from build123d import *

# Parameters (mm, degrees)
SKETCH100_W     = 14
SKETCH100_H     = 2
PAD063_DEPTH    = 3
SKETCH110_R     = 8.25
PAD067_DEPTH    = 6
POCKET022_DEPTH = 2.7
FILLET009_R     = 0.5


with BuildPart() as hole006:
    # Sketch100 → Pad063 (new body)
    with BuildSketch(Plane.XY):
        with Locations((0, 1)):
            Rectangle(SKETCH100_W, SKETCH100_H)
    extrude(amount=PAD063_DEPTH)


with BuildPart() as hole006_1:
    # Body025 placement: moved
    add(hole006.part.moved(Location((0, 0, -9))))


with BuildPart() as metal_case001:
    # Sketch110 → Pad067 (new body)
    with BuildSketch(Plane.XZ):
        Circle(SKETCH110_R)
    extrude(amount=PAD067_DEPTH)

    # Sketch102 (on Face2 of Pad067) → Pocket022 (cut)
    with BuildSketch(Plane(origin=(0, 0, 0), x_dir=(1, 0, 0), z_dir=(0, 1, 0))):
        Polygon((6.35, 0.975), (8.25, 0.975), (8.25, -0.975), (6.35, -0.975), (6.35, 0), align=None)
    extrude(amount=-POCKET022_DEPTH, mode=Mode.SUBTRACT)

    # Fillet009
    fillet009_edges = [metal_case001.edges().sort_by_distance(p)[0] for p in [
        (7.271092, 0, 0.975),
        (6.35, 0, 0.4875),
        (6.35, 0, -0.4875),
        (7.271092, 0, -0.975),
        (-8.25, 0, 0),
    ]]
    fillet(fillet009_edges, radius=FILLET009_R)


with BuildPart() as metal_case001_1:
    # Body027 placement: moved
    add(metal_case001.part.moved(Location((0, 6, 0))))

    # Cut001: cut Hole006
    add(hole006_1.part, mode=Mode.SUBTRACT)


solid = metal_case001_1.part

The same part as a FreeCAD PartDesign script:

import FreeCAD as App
import Part
import Sketcher

V = App.Vector
Q = App.Units.Quantity


def edges_at(feature, points):
    """Names of the edges that pass closest to the given points."""
    edges = feature.Shape.Edges
    near = lambda p: min(range(len(edges)), key=lambda i: edges[i].distToShape(Part.Vertex(*p))[0])
    return sorted({f"Edge{near(p) + 1}" for p in points})

doc = App.newDocument("Part")
params = doc.addObject("Spreadsheet::Sheet", "Params")
for row, (alias, value) in enumerate([
    ("sketch1_width", "14 mm"),
    ("sketch1_height", "2 mm"),
    ("pad1_length", "3 mm"),
    ("sketch2_diameter", "16.5 mm"),
    ("pad2_length", "6 mm"),
    ("sketch3_width", "1.9 mm"),
    ("sketch3_height", "1.95 mm"),
    ("pocket1_length", "2.7 mm"),
    ("fillet_radius", "0.5 mm"),
], start=1):
    params.set(f"A{row}", alias)
    params.set(f"B{row}", "=" + value)
    params.setAlias(f"B{row}", alias)

body = doc.addObject("PartDesign::Body", "Body")

# Sketch on XY plane
sketch1 = body.newObject("Sketcher::SketchObject", "Sketch")
sketch1.AttachmentSupport = (doc.getObject("XY_Plane"), [""])
sketch1.MapMode = "FlatFace"
sketch1.addGeometry([
    Part.LineSegment(V(-7, 2, 0), V(-7, 0, 0)),
    Part.LineSegment(V(-7, 0, 0), V(7, 0, 0)),
    Part.LineSegment(V(7, 0, 0), V(7, 2, 0)),
    Part.LineSegment(V(7, 2, 0), V(-7, 2, 0)),
], False)
sketch1.addConstraint([
    Sketcher.Constraint("Coincident", 0, 2, 1, 1),
    Sketcher.Constraint("Coincident", 1, 2, 2, 1),
    Sketcher.Constraint("Coincident", 2, 2, 3, 1),
    Sketcher.Constraint("Coincident", 3, 2, 0, 1),
    Sketcher.Constraint("Vertical", 0),
    Sketcher.Constraint("Horizontal", 1),
    Sketcher.Constraint("Vertical", 2),
    Sketcher.Constraint("Horizontal", 3),
    Sketcher.Constraint("Symmetric", 0, 2, 1, 2, -1, 1),
    Sketcher.Constraint("DistanceX", 1, 1, 1, 2, Q("14 mm")),
    Sketcher.Constraint("DistanceY", 0, 2, 0, 1, Q("2 mm")),
])
sketch1.setExpression("Constraints[9]", "Params.sketch1_width")
sketch1.setExpression("Constraints[10]", "Params.sketch1_height")
pad1 = body.newObject("PartDesign::Pad", "Pad")
pad1.Profile = sketch1
pad1.setExpression("Length", "Params.pad1_length")
body2 = doc.addObject("PartDesign::Body", "Body001")
doc.recompute()

body.Placement = App.Placement(V(0, 0, -9), App.Rotation(V(0, 0, 1), 0))
boolean = body2.newObject("PartDesign::Boolean", "Boolean")
boolean.Type = "Fuse"
boolean.addObjects([body])
body3 = doc.addObject("PartDesign::Body", "Body002")

# Sketch on XZ plane
sketch2 = body3.newObject("Sketcher::SketchObject", "Sketch001")
sketch2.AttachmentSupport = (doc.getObject("XZ_Plane002"), [""])
sketch2.MapMode = "FlatFace"
sketch2.addGeometry(Part.Circle(V(0, 0, 0), V(0, 0, 1), 8), False)
sketch2.addConstraint([
    Sketcher.Constraint("Coincident", 0, 3, -1, 1),
    Sketcher.Constraint("Diameter", 0, Q("16.5 mm")),
])
sketch2.setExpression("Constraints[1]", "Params.sketch2_diameter")
pad2 = body3.newObject("PartDesign::Pad", "Pad001")
pad2.Profile = sketch2
pad2.setExpression("Length", "Params.pad2_length")

# Sketch on XZ plane
sketch3 = body3.newObject("Sketcher::SketchObject", "Sketch002")
sketch3.AttachmentSupport = (doc.getObject("XZ_Plane002"), [""])
sketch3.MapMode = "FlatFace"
sketch3.addGeometry([
    Part.LineSegment(V(8.2, -1, 0), V(6.3, -1, 0)),
    Part.LineSegment(V(6.3, -1, 0), V(6.3, 1, 0)),
    Part.LineSegment(V(6.3, 1, 0), V(8.2, 1, 0)),
    Part.LineSegment(V(8.2, 1, 0), V(8.2, -1, 0)),
], False)
sketch3.addConstraint([
    Sketcher.Constraint("Coincident", 0, 2, 1, 1),
    Sketcher.Constraint("Coincident", 1, 2, 2, 1),
    Sketcher.Constraint("Coincident", 2, 2, 3, 1),
    Sketcher.Constraint("Coincident", 3, 2, 0, 1),
    Sketcher.Constraint("Horizontal", 0),
    Sketcher.Constraint("Vertical", 1),
    Sketcher.Constraint("Horizontal", 2),
    Sketcher.Constraint("Vertical", 3),
    Sketcher.Constraint("DistanceX", 0, 2, 0, 1, Q("1.9 mm")),
    Sketcher.Constraint("DistanceY", 1, 1, 1, 2, Q("1.95 mm")),
    Sketcher.Constraint("DistanceX", -1, 1, 0, 2, Q("6.35 mm")),
    Sketcher.Constraint("DistanceY", 0, 2, -1, 1, Q("0.975 mm")),
])
sketch3.setExpression("Constraints[8]", "Params.sketch3_width")
sketch3.setExpression("Constraints[9]", "Params.sketch3_height")
pocket1 = body3.newObject("PartDesign::Pocket", "Pocket")
pocket1.Profile = sketch3
pocket1.setExpression("Length", "Params.pocket1_length")
pocket1.Reversed = True
doc.recompute()

fillet = body3.newObject("PartDesign::Fillet", "Fillet")
fillet.Base = (pocket1, edges_at(pocket1, [
    (7.271, 0, 0.975),
    (6.35, 0, 0),
    (6.35, 0, 0),
    (7.271, 0, -0.975),
    (-8.25, 0, 0),
]))
fillet.setExpression("Radius", "Params.fillet_radius")
body4 = doc.addObject("PartDesign::Body", "Body003")
doc.recompute()

body3.Placement = App.Placement(V(0, 6, 0), App.Rotation(V(0, 0, 1), 0))
boolean2 = body4.newObject("PartDesign::Boolean", "Boolean001")
boolean2.Type = "Fuse"
boolean2.addObjects([body3])
doc.recompute()

boolean3 = body4.newObject("PartDesign::Boolean", "Boolean002")
boolean3.Type = "Cut"
boolean3.addObjects([body2])

doc.recompute()
